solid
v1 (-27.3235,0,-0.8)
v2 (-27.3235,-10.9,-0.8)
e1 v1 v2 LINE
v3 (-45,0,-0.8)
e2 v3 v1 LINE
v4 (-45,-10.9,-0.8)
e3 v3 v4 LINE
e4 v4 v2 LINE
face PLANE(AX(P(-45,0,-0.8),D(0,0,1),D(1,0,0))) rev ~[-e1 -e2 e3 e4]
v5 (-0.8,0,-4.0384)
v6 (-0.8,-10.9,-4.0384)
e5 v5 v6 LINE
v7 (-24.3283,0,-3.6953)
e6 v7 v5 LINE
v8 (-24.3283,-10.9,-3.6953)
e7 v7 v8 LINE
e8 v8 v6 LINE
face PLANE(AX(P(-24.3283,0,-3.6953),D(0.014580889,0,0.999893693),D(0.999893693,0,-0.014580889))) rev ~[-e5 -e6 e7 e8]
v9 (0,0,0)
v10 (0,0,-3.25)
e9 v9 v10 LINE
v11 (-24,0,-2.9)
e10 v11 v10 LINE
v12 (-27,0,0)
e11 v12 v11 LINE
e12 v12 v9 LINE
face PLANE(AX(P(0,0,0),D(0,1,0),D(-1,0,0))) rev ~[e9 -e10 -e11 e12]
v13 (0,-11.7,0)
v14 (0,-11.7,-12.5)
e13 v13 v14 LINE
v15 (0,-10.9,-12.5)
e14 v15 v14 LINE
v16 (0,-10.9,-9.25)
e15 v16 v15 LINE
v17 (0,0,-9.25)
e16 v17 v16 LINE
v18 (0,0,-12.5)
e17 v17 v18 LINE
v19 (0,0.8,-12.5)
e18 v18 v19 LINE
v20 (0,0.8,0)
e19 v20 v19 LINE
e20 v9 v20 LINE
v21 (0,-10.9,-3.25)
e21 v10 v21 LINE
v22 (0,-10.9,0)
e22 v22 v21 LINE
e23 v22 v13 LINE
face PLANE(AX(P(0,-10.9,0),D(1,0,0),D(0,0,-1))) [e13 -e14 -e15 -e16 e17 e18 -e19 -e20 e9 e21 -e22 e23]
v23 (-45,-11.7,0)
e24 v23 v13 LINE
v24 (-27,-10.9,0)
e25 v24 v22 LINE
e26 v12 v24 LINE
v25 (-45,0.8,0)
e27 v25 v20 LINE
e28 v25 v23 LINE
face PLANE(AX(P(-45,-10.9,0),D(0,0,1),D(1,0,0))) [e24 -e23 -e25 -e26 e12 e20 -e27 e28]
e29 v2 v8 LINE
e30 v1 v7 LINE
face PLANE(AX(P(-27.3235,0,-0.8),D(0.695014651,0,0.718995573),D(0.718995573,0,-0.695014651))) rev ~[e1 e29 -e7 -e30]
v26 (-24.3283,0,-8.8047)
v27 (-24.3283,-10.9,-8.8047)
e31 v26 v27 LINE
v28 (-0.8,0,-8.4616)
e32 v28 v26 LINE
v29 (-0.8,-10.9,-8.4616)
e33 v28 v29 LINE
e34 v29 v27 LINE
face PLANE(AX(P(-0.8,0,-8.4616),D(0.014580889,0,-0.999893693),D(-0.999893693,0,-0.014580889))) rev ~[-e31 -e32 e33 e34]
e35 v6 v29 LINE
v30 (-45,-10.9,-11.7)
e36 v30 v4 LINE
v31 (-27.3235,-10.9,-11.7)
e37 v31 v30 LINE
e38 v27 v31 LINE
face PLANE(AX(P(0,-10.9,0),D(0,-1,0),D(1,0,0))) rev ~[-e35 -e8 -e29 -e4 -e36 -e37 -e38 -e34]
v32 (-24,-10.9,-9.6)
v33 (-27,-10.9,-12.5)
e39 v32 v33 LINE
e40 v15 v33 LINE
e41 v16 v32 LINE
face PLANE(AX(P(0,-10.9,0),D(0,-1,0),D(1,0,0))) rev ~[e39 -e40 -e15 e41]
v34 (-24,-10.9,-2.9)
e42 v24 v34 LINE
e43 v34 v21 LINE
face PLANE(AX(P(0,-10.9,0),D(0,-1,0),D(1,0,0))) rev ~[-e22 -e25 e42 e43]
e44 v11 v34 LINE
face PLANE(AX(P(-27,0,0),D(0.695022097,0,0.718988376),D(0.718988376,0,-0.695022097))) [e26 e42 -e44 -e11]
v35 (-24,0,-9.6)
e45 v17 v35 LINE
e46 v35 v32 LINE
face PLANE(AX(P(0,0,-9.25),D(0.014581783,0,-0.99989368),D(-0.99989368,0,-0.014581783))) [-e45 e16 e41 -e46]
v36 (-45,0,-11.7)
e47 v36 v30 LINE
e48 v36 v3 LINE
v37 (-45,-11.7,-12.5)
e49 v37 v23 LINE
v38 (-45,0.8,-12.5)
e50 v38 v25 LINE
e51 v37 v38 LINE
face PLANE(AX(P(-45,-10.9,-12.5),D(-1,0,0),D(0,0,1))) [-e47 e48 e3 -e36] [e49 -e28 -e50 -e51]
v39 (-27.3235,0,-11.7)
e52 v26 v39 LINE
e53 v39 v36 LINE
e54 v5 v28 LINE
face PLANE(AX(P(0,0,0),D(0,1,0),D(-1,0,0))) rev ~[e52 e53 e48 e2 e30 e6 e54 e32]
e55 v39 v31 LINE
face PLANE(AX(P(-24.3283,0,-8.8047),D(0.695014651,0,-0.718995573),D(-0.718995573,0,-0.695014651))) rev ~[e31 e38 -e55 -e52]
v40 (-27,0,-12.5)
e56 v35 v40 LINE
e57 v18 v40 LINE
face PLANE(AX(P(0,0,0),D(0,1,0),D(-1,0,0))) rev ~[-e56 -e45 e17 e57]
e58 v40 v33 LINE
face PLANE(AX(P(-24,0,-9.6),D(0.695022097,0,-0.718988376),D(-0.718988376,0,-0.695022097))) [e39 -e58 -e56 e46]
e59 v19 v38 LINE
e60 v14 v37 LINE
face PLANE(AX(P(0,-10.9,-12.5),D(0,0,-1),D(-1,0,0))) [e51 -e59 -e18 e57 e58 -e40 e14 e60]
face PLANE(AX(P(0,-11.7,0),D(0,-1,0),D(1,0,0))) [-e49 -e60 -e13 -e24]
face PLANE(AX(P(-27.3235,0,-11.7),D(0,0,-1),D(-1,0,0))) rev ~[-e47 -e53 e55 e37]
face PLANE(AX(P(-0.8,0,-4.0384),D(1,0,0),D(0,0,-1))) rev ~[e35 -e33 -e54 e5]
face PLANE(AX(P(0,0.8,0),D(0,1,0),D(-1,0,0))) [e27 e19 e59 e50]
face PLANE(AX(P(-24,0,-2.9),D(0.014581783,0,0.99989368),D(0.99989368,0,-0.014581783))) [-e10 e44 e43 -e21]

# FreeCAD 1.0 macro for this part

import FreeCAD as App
import Part
import Sketcher

V = App.Vector
Q = App.Units.Quantity


def add_polygon(sketch, points):
    """Adds a closed chain of lines whose ends are joined by coincident constraints."""
    first, n = sketch.GeometryCount, len(points)
    for a, b in zip(points, points[1:] + points[:1]):
        sketch.addGeometry(Part.LineSegment(App.Vector(*a, 0), App.Vector(*b, 0)), False)
    for i in range(n):
        sketch.addConstraint(Sketcher.Constraint("Coincident", first + i, 2, first + (i + 1) % n, 1))

doc = App.newDocument("Part")
params = doc.addObject("Spreadsheet::Sheet", "Params")
for row, (alias, value) in enumerate([
    ("sketch1_width", "45 mm"),
    ("sketch1_height", "12.5 mm"),
    ("pad1_length", "0.8 mm"),
    ("sketch2_width", "18 mm"),
    ("sketch2_height", "6 mm"),
    ("sketch2_height2", "0.8 mm"),
    ("pad2_length", "10.9 mm"),
    ("sketch3_width", "45 mm"),
    ("sketch3_height", "12.5 mm"),
    ("pad3_length", "0.8 mm"),
], start=1):
    params.set(f"A{row}", alias)
    params.set(f"B{row}", "=" + value)
    params.setAlias(f"B{row}", alias)

body = doc.addObject("PartDesign::Body", "Body")

sketch1 = body.newObject("Sketcher::SketchObject", "Sketch")
sketch1.AttachmentSupport = (doc.getObject("XZ_Plane"), [""])
sketch1.MapMode = "FlatFace"
add_polygon(sketch1, [(-45, -12), (-45, 0), (0, 0), (0, -12)])
sketch1.addConstraint([
    Sketcher.Constraint("Vertical", 0),
    Sketcher.Constraint("Horizontal", 1),
    Sketcher.Constraint("Vertical", 2),
    Sketcher.Constraint("Horizontal", 3),
    Sketcher.Constraint("Coincident", 1, 2, -1, 1),
    Sketcher.Constraint("DistanceX", 1, 1, 1, 2, Q("45 mm")),
    Sketcher.Constraint("DistanceY", 0, 1, 0, 2, Q("12.5 mm")),
])
sketch1.setExpression("Constraints[9]", "Params.sketch1_width")
sketch1.setExpression("Constraints[10]", "Params.sketch1_height")
pad1 = body.newObject("PartDesign::Pad", "Pad")
pad1.Profile = sketch1
pad1.setExpression("Length", "Params.pad1_length")
pad1.Reversed = True

sketch2 = body.newObject("Sketcher::SketchObject", "Sketch001")
sketch2.AttachmentSupport = (doc.getObject("XZ_Plane"), [""])
sketch2.MapMode = "FlatFace"
add_polygon(sketch2, [(-27, 0), (-45, 0), (-45, -0.8), (-27.3, -0.8), (-24.3, -3.7), (-0.8, -4), (-0.8, -8.5), (-24.3, -8.8), (-27.3, -11.7), (-45, -11.7), (-45, -12.5), (-27, -12.5), (-24, -9.6), (0, -9.2), (0, -3.2), (-24, -2.9)])
sketch2.addConstraint([
    Sketcher.Constraint("Horizontal", 0),
    Sketcher.Constraint("Vertical", 1),
    Sketcher.Constraint("Horizontal", 2),
    Sketcher.Constraint("Vertical", 5),
    Sketcher.Constraint("Horizontal", 8),
    Sketcher.Constraint("Vertical", 9),
    Sketcher.Constraint("Horizontal", 10),
    Sketcher.Constraint("Vertical", 13),
    Sketcher.Constraint("PointOnObject", 0, 2, -1),
    Sketcher.Constraint("PointOnObject", 12, 2, -2),
    Sketcher.Constraint("Parallel", 7, 11),
    Sketcher.Constraint("Parallel", 6, 12),
    Sketcher.Constraint("Parallel", 4, 14),
    Sketcher.Constraint("Parallel", 3, 15),
    Sketcher.Constraint("Vertical", 3, 2, 6, 2),
    Sketcher.Constraint("Vertical", 2, 2, 7, 2),
    Sketcher.Constraint("Vertical", 1, 2, 8, 2),
    Sketcher.Constraint("Vertical", 11, 2, 14, 2),
    Sketcher.Constraint("Vertical", 10, 2, 15, 2),
    Sketcher.Constraint("Equal", 1, 9),
    Sketcher.Constraint("Equal", 4, 6),
    Sketcher.Constraint("Equal", 3, 7),
    Sketcher.Constraint("DistanceX", 0, 2, 0, 1, Q("18 mm")),
    Sketcher.Constraint("DistanceY", 13, 1, 13, 2, Q("6 mm")),
    Sketcher.Constraint("DistanceY", 1, 2, 1, 1, Q("0.8 mm")),
    Sketcher.Constraint("DistanceX", 11, 2, -1, 1, Q("24 mm")),
    Sketcher.Constraint("DistanceX", 4, 2, -1, 1, Q("0.8 mm")),
    Sketcher.Constraint("DistanceY", 14, 2, -1, 1, Q("2.9 mm")),
    Sketcher.Constraint("DistanceY", 11, 2, 14, 2, Q("6.7 mm")),
    Sketcher.Constraint("DistanceX", 0, 2, -1, 1, Q("45 mm")),
    Sketcher.Constraint("DistanceX", 2, 1, 2, 2, Q("17.6765 mm")),
    Sketcher.Constraint("DistanceY", 5, 2, 5, 1, Q("4.4232 mm")),
])
sketch2.setExpression("Constraints[38]", "Params.sketch2_width")
sketch2.setExpression("Constraints[39]", "Params.sketch2_height")
sketch2.setExpression("Constraints[40]", "Params.sketch2_height2")
pad2 = body.newObject("PartDesign::Pad", "Pad001")
pad2.Profile = sketch2
pad2.setExpression("Length", "Params.pad2_length")

sketch3 = body.newObject("Sketcher::SketchObject", "Sketch002")
sketch3.AttachmentSupport = (doc.getObject("XZ_Plane"), [""])
sketch3.MapMode = "FlatFace"
sketch3.AttachmentOffset = App.Placement(V(0, 0, 10.9), App.Rotation())
add_polygon(sketch3, [(0, -12), (0, 0), (-45, 0), (-45, -12)])
sketch3.addConstraint([
    Sketcher.Constraint("Vertical", 0),
    Sketcher.Constraint("Horizontal", 1),
    Sketcher.Constraint("Vertical", 2),
    Sketcher.Constraint("Horizontal", 3),
    Sketcher.Constraint("Coincident", 0, 2, -1, 1),
    Sketcher.Constraint("DistanceX", 1, 2, 1, 1, Q("45 mm")),
    Sketcher.Constraint("DistanceY", 0, 1, 0, 2, Q("12.5 mm")),
])
sketch3.setExpression("Constraints[9]", "Params.sketch3_width")
sketch3.setExpression("Constraints[10]", "Params.sketch3_height")
pad3 = body.newObject("PartDesign::Pad", "Pad002")
pad3.Profile = sketch3
pad3.setExpression("Length", "Params.pad3_length")

doc.recompute()
